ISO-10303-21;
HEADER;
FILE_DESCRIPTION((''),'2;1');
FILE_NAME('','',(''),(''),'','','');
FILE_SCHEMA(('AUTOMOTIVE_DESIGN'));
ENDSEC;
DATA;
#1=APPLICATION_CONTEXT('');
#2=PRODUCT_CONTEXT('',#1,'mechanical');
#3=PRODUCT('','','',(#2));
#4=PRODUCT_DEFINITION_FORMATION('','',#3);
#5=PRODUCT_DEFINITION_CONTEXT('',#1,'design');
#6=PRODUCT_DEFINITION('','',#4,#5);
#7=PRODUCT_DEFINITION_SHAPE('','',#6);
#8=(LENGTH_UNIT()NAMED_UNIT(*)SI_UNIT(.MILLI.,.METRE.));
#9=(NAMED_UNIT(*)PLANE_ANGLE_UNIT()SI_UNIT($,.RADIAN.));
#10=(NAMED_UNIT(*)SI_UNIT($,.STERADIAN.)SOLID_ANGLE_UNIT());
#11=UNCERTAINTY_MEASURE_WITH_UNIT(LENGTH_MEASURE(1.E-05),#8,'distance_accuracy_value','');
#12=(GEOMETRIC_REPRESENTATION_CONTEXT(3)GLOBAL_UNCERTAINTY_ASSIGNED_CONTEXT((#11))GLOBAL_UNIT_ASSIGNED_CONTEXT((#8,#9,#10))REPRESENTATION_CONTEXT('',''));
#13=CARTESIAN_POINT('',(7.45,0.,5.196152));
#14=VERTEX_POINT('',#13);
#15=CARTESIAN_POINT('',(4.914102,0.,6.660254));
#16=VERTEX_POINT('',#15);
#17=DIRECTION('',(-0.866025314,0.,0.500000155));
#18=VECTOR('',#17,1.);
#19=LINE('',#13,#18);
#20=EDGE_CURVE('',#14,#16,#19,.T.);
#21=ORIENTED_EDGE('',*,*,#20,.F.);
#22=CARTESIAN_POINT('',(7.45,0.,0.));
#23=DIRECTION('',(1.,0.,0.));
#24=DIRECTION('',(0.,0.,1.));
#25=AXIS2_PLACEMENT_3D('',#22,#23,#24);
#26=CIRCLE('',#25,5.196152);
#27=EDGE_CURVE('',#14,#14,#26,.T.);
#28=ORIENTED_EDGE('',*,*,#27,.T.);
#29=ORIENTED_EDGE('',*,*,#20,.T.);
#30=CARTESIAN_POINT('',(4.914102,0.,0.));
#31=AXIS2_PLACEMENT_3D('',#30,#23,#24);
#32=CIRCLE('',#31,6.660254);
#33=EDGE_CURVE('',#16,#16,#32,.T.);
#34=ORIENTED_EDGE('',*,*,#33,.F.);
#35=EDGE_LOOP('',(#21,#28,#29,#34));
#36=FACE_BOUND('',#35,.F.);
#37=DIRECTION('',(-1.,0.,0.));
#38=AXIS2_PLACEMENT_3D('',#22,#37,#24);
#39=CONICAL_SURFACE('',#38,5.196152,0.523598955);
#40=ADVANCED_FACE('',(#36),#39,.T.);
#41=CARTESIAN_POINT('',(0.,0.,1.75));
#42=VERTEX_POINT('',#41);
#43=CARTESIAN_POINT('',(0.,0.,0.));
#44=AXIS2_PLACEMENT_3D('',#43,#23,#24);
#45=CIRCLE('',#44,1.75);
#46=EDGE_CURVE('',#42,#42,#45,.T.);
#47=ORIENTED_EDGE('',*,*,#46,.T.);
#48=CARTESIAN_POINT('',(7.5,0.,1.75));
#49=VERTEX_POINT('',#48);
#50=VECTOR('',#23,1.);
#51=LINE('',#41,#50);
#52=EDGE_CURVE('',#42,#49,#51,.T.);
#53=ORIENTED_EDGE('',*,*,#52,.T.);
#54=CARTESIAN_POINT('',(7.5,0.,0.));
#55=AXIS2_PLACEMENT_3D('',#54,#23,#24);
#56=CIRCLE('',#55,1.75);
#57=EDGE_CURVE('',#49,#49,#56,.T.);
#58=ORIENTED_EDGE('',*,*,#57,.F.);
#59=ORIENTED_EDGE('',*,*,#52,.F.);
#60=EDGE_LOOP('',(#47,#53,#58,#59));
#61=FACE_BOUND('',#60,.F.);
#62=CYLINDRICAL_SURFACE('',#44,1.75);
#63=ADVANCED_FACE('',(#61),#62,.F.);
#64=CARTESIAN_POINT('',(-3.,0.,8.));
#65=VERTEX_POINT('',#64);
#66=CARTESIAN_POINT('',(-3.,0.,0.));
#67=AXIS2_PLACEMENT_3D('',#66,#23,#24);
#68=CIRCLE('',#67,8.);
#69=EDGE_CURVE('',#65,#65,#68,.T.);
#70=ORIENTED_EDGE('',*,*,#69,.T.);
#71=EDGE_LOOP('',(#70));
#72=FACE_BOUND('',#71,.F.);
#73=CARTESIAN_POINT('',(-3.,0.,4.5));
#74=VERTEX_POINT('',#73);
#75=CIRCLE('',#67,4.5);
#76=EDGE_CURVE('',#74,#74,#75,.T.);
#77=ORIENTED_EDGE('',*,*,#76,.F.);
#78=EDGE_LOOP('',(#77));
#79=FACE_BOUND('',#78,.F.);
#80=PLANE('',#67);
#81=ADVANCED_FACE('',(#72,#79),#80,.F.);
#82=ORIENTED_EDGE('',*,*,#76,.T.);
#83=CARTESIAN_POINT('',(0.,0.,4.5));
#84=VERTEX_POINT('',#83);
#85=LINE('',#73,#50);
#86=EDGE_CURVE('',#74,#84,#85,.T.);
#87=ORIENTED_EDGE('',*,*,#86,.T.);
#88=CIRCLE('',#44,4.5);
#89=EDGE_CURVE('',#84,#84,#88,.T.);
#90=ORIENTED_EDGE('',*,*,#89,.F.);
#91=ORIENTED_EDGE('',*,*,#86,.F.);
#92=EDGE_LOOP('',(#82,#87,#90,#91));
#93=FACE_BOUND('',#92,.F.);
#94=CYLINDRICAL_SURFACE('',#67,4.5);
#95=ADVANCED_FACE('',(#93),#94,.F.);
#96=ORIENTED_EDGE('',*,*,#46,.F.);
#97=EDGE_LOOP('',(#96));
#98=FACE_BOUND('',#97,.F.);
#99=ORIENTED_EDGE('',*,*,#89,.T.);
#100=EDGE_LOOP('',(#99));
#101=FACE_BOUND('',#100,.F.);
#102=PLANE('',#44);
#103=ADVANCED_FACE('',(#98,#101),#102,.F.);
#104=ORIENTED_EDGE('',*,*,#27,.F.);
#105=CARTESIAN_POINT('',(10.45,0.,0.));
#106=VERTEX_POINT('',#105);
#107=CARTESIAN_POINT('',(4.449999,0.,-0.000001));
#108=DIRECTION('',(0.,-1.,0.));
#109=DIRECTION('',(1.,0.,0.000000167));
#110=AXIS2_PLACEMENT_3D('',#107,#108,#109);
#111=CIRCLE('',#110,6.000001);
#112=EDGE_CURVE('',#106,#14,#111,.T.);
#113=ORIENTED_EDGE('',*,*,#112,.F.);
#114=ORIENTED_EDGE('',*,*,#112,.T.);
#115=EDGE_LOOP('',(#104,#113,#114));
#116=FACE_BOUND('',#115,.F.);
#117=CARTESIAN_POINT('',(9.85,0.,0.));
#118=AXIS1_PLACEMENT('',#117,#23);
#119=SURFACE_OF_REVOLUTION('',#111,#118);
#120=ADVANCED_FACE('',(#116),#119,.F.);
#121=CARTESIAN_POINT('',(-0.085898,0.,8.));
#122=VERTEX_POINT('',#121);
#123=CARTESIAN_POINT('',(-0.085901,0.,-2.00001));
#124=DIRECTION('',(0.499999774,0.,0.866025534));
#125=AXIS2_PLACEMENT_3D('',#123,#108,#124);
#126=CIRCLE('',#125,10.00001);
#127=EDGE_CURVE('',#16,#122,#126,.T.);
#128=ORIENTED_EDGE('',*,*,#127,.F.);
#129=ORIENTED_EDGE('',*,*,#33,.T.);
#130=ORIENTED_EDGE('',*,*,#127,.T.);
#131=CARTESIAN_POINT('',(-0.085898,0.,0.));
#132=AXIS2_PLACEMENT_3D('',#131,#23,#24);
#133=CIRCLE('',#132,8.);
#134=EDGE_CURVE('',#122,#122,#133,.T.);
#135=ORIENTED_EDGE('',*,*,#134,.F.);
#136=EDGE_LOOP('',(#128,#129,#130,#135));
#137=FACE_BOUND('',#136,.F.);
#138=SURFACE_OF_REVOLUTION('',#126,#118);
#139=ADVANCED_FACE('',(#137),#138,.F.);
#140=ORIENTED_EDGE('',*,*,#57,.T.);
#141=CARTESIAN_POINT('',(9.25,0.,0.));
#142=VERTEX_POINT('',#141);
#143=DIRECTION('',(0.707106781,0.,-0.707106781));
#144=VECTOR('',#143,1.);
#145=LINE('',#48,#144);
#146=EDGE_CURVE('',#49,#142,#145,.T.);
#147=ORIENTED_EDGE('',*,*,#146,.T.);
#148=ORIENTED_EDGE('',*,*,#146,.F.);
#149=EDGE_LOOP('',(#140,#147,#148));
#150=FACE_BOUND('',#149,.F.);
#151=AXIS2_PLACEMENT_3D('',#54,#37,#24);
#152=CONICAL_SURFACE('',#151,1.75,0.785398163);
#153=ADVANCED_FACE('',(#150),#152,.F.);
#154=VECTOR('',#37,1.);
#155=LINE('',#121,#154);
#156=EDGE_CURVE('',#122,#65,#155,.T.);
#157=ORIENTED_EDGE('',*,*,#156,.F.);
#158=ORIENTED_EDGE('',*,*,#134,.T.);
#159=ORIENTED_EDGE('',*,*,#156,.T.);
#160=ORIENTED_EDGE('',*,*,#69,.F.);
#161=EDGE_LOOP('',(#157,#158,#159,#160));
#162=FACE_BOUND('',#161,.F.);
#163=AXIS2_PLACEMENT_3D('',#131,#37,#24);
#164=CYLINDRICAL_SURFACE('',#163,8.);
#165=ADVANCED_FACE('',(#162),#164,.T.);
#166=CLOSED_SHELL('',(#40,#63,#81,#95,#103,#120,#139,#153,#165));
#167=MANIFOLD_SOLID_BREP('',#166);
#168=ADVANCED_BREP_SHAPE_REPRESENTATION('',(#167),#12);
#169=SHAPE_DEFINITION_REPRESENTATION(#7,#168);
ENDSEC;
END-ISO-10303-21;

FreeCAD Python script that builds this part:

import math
import FreeCAD as App
import Part
import Sketcher
Q = App.Units.Quantity

doc = App.newDocument("Part")
body = doc.addObject("PartDesign::Body", "Body")

# Sketch on XZ plane
sketch1 = doc.addObject("Sketcher::SketchObject", "Sketch")
body.addObject(sketch1)
sketch1.AttachmentSupport = (doc.XZ_Plane, [""])
sketch1.MapMode = "FlatFace"
sketch1.addGeometry(Part.LineSegment(App.Vector(0, 4.5, 0), App.Vector(0, 1.8, 0)), False)
sketch1.addGeometry(Part.LineSegment(App.Vector(0, 1.8, 0), App.Vector(7.5, 1.8, 0)), False)
sketch1.addGeometry(Part.LineSegment(App.Vector(7.5, 1.8, 0), App.Vector(9.2, 0, 0)), False)
sketch1.addGeometry(Part.LineSegment(App.Vector(9.2, 0, 0), App.Vector(10.4, 0, 0)), False)
sketch1.addGeometry(Part.ArcOfCircle(Part.Circle(App.Vector(4.4, 0, 0), App.Vector(0, 0, 1), 6), math.radians(0), math.radians(60)), False)
sketch1.addGeometry(Part.LineSegment(App.Vector(7.5, 5.2, 0), App.Vector(4.9, 6.7, 0)), False)
sketch1.addGeometry(Part.ArcOfCircle(Part.Circle(App.Vector(-0.1, -2, 0), App.Vector(0, 0, 1), 10), math.radians(60), math.radians(90)), False)
sketch1.addGeometry(Part.LineSegment(App.Vector(-0.1, 8, 0), App.Vector(-3, 8, 0)), False)
sketch1.addGeometry(Part.LineSegment(App.Vector(-3, 8, 0), App.Vector(-3, 4.5, 0)), False)
sketch1.addGeometry(Part.LineSegment(App.Vector(-3, 4.5, 0), App.Vector(0, 4.5, 0)), False)
sketch1.addConstraint(Sketcher.Constraint("Coincident", 0, 2, 1, 1))
sketch1.addConstraint(Sketcher.Constraint("Coincident", 1, 2, 2, 1))
sketch1.addConstraint(Sketcher.Constraint("Coincident", 2, 2, 3, 1))
sketch1.addConstraint(Sketcher.Constraint("Coincident", 3, 2, 4, 1))
sketch1.addConstraint(Sketcher.Constraint("Tangent", 4, 2, 5, 1))
sketch1.addConstraint(Sketcher.Constraint("Tangent", 5, 2, 6, 1))
sketch1.addConstraint(Sketcher.Constraint("Tangent", 6, 2, 7, 1))
sketch1.addConstraint(Sketcher.Constraint("Coincident", 7, 2, 8, 1))
sketch1.addConstraint(Sketcher.Constraint("Coincident", 8, 2, 9, 1))
sketch1.addConstraint(Sketcher.Constraint("Coincident", 9, 2, 0, 1))
sketch1.addConstraint(Sketcher.Constraint("Vertical", 0))
sketch1.addConstraint(Sketcher.Constraint("Horizontal", 1))
sketch1.addConstraint(Sketcher.Constraint("Horizontal", 3))
sketch1.addConstraint(Sketcher.Constraint("Horizontal", 7))
sketch1.addConstraint(Sketcher.Constraint("Vertical", 8))
sketch1.addConstraint(Sketcher.Constraint("Horizontal", 9))
sketch1.addConstraint(Sketcher.Constraint("PointOnObject", 4, 3, -1))
sketch1.addConstraint(Sketcher.Constraint("PointOnObject", 0, 2, -2))
sketch1.addConstraint(Sketcher.Constraint("PointOnObject", 2, 2, -1))
sketch1.addConstraint(Sketcher.Constraint("Radius", 4, 6.000001))
sketch1.addConstraint(Sketcher.Constraint("DistanceX", 9, 1, 9, 2, 3.0))
sketch1.addConstraint(Sketcher.Constraint("Angle", 2, Q("-45 deg")))
sketch1.addConstraint(Sketcher.Constraint("Angle", 5, Q("149.99999 deg")))
sketch1.addConstraint(Sketcher.Constraint("DistanceX", 1, 1, 1, 2, 7.5))
sketch1.addConstraint(Sketcher.Constraint("DistanceX", 3, 1, 3, 2, 1.2))
sketch1.addConstraint(Sketcher.Constraint("DistanceY", 8, 2, 8, 1, 3.5))
sketch1.addConstraint(Sketcher.Constraint("DistanceY", -1, 1, 6, 2, 8.0))
sketch1.addConstraint(Sketcher.Constraint("DistanceX", 6, 2, 5, 2, 5.0))
sketch1.addConstraint(Sketcher.Constraint("DistanceY", 0, 2, 0, 1, 2.75))
revolution = doc.addObject("PartDesign::Revolution", "Revolution")
body.addObject(revolution)
revolution.Profile = sketch1
revolution.ReferenceAxis = (sketch1, ["H_Axis"])
revolution.Angle = 360

doc.recompute()
